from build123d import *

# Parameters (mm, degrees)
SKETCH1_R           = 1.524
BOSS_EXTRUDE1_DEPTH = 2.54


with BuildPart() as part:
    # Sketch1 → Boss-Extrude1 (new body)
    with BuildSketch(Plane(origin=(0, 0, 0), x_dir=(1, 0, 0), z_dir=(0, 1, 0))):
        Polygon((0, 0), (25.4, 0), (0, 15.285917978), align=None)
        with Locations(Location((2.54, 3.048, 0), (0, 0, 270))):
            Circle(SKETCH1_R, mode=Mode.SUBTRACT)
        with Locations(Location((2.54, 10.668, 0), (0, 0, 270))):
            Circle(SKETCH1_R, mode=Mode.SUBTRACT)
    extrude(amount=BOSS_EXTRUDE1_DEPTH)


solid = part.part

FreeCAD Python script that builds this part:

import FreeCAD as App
import Part
import Sketcher

V = App.Vector
Q = App.Units.Quantity

doc = App.newDocument("Part")
body = doc.addObject("PartDesign::Body", "Body")

sketch1 = body.newObject("Sketcher::SketchObject", "Sketch")
sketch1.AttachmentSupport = (doc.getObject("XZ_Plane"), [""])
sketch1.MapMode = "FlatFace"
sketch1.addGeometry([
    Part.LineSegment(V(0, 0, 0), V(25.4, 0, 0)),
    Part.LineSegment(V(25.4, 0, 0), V(0, -15.285918, 0)),
    Part.LineSegment(V(0, -15.285918, 0), V(0, 0, 0)),
    Part.Circle(V(2.54, -3.048, 0), V(0, 0, 1), 1.524),
    Part.Circle(V(2.54, -10.668, 0), V(0, 0, 1), 1.524),
], False)
sketch1.addConstraint([
    Sketcher.Constraint("Coincident", 0, 2, 1, 1),
    Sketcher.Constraint("Coincident", 1, 2, 2, 1),
    Sketcher.Constraint("Coincident", 2, 2, 0, 1),
    Sketcher.Constraint("Horizontal", 0),
    Sketcher.Constraint("Vertical", 2),
    Sketcher.Constraint("Coincident", 2, 2, -1, 1),
    Sketcher.Constraint("Equal", 3, 4),
    Sketcher.Constraint("Vertical", 3, 3, 4, 3),
    Sketcher.Constraint("Diameter", 3, Q("0.12 in")),
    Sketcher.Constraint("DistanceX", 0, 1, 0, 2, Q("1 in")),
    Sketcher.Constraint("DistanceX", -1, 1, 3, 3, Q("0.1 in")),
    Sketcher.Constraint("DistanceY", 4, 3, 3, 3, Q("0.3 in")),
    Sketcher.Constraint("DistanceY", 3, 3, -1, 1, Q("0.12 in")),
    Sketcher.Constraint("DistanceY", 2, 1, 2, 2, 15.285918),
])
pad1 = body.newObject("PartDesign::Pad", "Pad")
pad1.Profile = sketch1
pad1.Length = Q("0.1 in")
pad1.Reversed = True

doc.recompute()
